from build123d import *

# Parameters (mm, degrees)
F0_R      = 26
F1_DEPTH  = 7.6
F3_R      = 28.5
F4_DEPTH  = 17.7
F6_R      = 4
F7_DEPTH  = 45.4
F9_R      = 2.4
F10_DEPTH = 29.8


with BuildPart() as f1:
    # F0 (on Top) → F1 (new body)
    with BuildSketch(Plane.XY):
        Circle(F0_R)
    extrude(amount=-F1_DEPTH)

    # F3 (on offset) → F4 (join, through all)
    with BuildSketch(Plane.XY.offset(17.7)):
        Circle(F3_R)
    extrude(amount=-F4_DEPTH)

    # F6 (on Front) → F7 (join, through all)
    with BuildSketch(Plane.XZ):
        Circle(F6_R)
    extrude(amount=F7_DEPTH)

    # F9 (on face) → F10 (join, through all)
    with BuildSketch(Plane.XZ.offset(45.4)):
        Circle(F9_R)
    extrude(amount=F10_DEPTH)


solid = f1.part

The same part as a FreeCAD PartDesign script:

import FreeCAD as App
import Part
import Sketcher

V = App.Vector
Q = App.Units.Quantity

doc = App.newDocument("Part")
params = doc.addObject("Spreadsheet::Sheet", "Params")
for row, (alias, value) in enumerate([
    ("sketch1_diameter", "52 mm"),
    ("pad1_length", "7.6 mm"),
    ("sketch2_diameter", "57 mm"),
    ("pad2_length", "17.7 mm"),
    ("sketch3_diameter", "8 mm"),
    ("pad3_length", "45.4 mm"),
    ("sketch4_diameter", "4.8 mm"),
    ("pad4_length", "29.8 mm"),
], start=1):
    params.set(f"A{row}", alias)
    params.set(f"B{row}", "=" + value)
    params.setAlias(f"B{row}", alias)

body = doc.addObject("PartDesign::Body", "Body")

# Sketch on XY plane
sketch1 = doc.addObject("Sketcher::SketchObject", "Sketch")
body.addObject(sketch1)
sketch1.AttachmentSupport = (doc.XY_Plane, [""])
sketch1.MapMode = "FlatFace"
sketch1.addGeometry(Part.Circle(V(0, 0, 0), V(0, 0, 1), 26), False)
sketch1.addConstraint([
    Sketcher.Constraint("Coincident", 0, 3, -1, 1),
    Sketcher.Constraint("Diameter", 0, Q("52 mm")),
])
sketch1.setExpression("Constraints[1]", "Params.sketch1_diameter")
pad1 = doc.addObject("PartDesign::Pad", "Pad")
body.addObject(pad1)
pad1.Profile = sketch1
pad1.setExpression("Length", "Params.pad1_length")
pad1.Reversed = True

# Sketch on XY plane
sketch2 = doc.addObject("Sketcher::SketchObject", "Sketch001")
body.addObject(sketch2)
sketch2.AttachmentSupport = (doc.XY_Plane, [""])
sketch2.MapMode = "FlatFace"
sketch2.AttachmentOffset = App.Placement(V(0, 0, 17.7), App.Rotation())
sketch2.addGeometry(Part.Circle(V(0, 0, 0), V(0, 0, 1), 28), False)
sketch2.addConstraint([
    Sketcher.Constraint("Coincident", 0, 3, -1, 1),
    Sketcher.Constraint("Diameter", 0, Q("57 mm")),
])
sketch2.setExpression("Constraints[1]", "Params.sketch2_diameter")
pad2 = doc.addObject("PartDesign::Pad", "Pad001")
body.addObject(pad2)
pad2.Profile = sketch2
pad2.setExpression("Length", "Params.pad2_length")
pad2.Reversed = True

# Sketch on XZ plane
sketch3 = doc.addObject("Sketcher::SketchObject", "Sketch002")
body.addObject(sketch3)
sketch3.AttachmentSupport = (doc.XZ_Plane, [""])
sketch3.MapMode = "FlatFace"
sketch3.addGeometry(Part.Circle(V(0, 0, 0), V(0, 0, 1), 4), False)
sketch3.addConstraint([
    Sketcher.Constraint("Coincident", 0, 3, -1, 1),
    Sketcher.Constraint("Diameter", 0, Q("8 mm")),
])
sketch3.setExpression("Constraints[1]", "Params.sketch3_diameter")
pad3 = doc.addObject("PartDesign::Pad", "Pad002")
body.addObject(pad3)
pad3.Profile = sketch3
pad3.setExpression("Length", "Params.pad3_length")

# Sketch on XZ plane
sketch4 = doc.addObject("Sketcher::SketchObject", "Sketch003")
body.addObject(sketch4)
sketch4.AttachmentSupport = (doc.XZ_Plane, [""])
sketch4.MapMode = "FlatFace"
sketch4.AttachmentOffset = App.Placement(V(0, 0, 45.4), App.Rotation())
sketch4.addGeometry(Part.Circle(V(0, 0, 0), V(0, 0, 1), 2.4), False)
sketch4.addConstraint([
    Sketcher.Constraint("Coincident", 0, 3, -1, 1),
    Sketcher.Constraint("Diameter", 0, Q("4.8 mm")),
])
sketch4.setExpression("Constraints[1]", "Params.sketch4_diameter")
pad4 = doc.addObject("PartDesign::Pad", "Pad003")
body.addObject(pad4)
pad4.Profile = sketch4
pad4.setExpression("Length", "Params.pad4_length")

doc.recompute()
